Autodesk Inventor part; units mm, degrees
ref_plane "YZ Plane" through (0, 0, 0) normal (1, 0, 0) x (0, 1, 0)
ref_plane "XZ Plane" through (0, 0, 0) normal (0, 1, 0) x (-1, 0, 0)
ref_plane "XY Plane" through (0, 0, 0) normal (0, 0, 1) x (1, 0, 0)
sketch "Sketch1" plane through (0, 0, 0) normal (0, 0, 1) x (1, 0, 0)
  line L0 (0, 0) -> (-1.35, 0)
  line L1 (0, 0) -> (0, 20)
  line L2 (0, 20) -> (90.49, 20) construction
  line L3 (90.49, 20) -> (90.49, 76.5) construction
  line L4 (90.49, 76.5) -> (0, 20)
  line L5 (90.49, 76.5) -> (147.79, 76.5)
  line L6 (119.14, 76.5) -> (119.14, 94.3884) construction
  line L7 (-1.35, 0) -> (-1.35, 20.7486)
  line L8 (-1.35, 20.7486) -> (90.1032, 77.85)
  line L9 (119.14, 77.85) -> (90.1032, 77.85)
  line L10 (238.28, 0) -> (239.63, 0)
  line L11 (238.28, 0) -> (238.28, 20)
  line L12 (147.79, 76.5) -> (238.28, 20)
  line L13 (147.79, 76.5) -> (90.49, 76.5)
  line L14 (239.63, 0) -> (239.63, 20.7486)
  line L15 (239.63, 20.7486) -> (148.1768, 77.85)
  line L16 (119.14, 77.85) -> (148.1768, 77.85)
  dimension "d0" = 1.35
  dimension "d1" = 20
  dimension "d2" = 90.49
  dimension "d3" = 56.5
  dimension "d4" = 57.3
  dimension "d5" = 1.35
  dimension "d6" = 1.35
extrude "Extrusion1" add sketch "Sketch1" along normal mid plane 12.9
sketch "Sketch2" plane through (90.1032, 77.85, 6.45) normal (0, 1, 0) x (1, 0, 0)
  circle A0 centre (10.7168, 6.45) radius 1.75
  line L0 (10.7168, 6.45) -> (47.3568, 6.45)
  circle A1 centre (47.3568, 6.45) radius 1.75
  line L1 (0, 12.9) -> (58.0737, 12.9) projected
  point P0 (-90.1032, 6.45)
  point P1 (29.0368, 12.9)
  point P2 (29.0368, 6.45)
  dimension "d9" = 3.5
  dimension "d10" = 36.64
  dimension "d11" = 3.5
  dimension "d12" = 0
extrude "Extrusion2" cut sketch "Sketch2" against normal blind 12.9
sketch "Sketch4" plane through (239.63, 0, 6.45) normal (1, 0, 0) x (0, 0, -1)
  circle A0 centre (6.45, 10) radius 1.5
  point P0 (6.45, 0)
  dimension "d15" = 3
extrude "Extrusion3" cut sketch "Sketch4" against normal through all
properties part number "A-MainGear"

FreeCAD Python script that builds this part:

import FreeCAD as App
import Part
import Sketcher

V = App.Vector

doc = App.newDocument("Part")
body = doc.addObject("PartDesign::Body", "Body")

sketch1 = body.newObject("Sketcher::SketchObject", "Sketch")
sketch1.AttachmentSupport = (doc.getObject("XY_Plane"), [""])
sketch1.MapMode = "FlatFace"
sketch1.addGeometry([
    Part.LineSegment(V(-1.35, 0, 0), V(0, 0, 0)),
    Part.LineSegment(V(0, 0, 0), V(0, 20, 0)),
    Part.LineSegment(V(0, 20, 0), V(90.49, 76.5, 0)),
    Part.LineSegment(V(90.49, 76.5, 0), V(147.79, 76.5, 0)),
    Part.LineSegment(V(147.79, 76.5, 0), V(238.28, 20, 0)),
    Part.LineSegment(V(238.28, 20, 0), V(238.28, 0, 0)),
    Part.LineSegment(V(238.28, 0, 0), V(239.63, 0, 0)),
    Part.LineSegment(V(239.63, 0, 0), V(239.63, 20.7486, 0)),
    Part.LineSegment(V(239.63, 20.7486, 0), V(148.1768, 77.85, 0)),
    Part.LineSegment(V(148.1768, 77.85, 0), V(90.1032, 77.85, 0)),
    Part.LineSegment(V(90.1032, 77.85, 0), V(-1.35, 20.7486, 0)),
    Part.LineSegment(V(-1.35, 20.7486, 0), V(-1.35, 0, 0)),
], False)
sketch1.addConstraint([
    Sketcher.Constraint("Coincident", 0, 2, 1, 1),
    Sketcher.Constraint("Coincident", 1, 2, 2, 1),
    Sketcher.Constraint("Coincident", 2, 2, 3, 1),
    Sketcher.Constraint("Coincident", 3, 2, 4, 1),
    Sketcher.Constraint("Coincident", 4, 2, 5, 1),
    Sketcher.Constraint("Coincident", 5, 2, 6, 1),
    Sketcher.Constraint("Coincident", 6, 2, 7, 1),
    Sketcher.Constraint("Coincident", 7, 2, 8, 1),
    Sketcher.Constraint("Coincident", 8, 2, 9, 1),
    Sketcher.Constraint("Coincident", 9, 2, 10, 1),
    Sketcher.Constraint("Coincident", 10, 2, 11, 1),
    Sketcher.Constraint("Coincident", 11, 2, 0, 1),
    Sketcher.Constraint("Horizontal", 0),
    Sketcher.Constraint("Vertical", 1),
    Sketcher.Constraint("Horizontal", 3),
    Sketcher.Constraint("Vertical", 5),
    Sketcher.Constraint("Horizontal", 6),
    Sketcher.Constraint("Vertical", 7),
    Sketcher.Constraint("Horizontal", 9),
    Sketcher.Constraint("Vertical", 11),
    Sketcher.Constraint("Coincident", 0, 2, -1, 1),
    Sketcher.Constraint("PointOnObject", 5, 2, -1),
    Sketcher.Constraint("Parallel", 4, 8),
    Sketcher.Constraint("Parallel", 2, 10),
    Sketcher.Constraint("Horizontal", 1, 2, 4, 2),
    Sketcher.Constraint("Horizontal", 7, 2, 10, 2),
    Sketcher.Constraint("Equal", 0, 6),
    Sketcher.Constraint("Equal", 2, 4),
    Sketcher.Constraint("DistanceY", 1, 1, 1, 2, 20.0),
    Sketcher.Constraint("DistanceX", 3, 1, 3, 2, 57.3),
    Sketcher.Constraint("DistanceX", 0, 1, 0, 2, 1.35),
    Sketcher.Constraint("DistanceY", 1, 2, 2, 2, 56.5),
    Sketcher.Constraint("DistanceX", -1, 1, 2, 2, 90.49),
    Sketcher.Constraint("DistanceY", 3, 2, 8, 2, 1.35),
    Sketcher.Constraint("DistanceX", 9, 2, 9, 1, 58.0736),
])
pad1 = body.newObject("PartDesign::Pad", "Pad")
pad1.Profile = sketch1
pad1.Length = 12.9
pad1.Midplane = True

sketch2 = body.newObject("Sketcher::SketchObject", "Sketch001")
sketch2.AttachmentSupport = (doc.getObject("XZ_Plane"), [""])
sketch2.MapMode = "FlatFace"
sketch2.AttachmentOffset = App.Placement(V(0, 0, -77.85), App.Rotation())
sketch2.addGeometry([
    Part.Circle(V(100.82, 0, 0), V(0, 0, 1), 1.75),
    Part.Circle(V(137.46, 0, 0), V(0, 0, 1), 1.75),
], False)
sketch2.addConstraint([
    Sketcher.Constraint("Equal", 0, 1),
    Sketcher.Constraint("PointOnObject", 0, 3, -1),
    Sketcher.Constraint("PointOnObject", 1, 3, -1),
    Sketcher.Constraint("Diameter", 0, 3.5),
    Sketcher.Constraint("DistanceX", 0, 3, 1, 3, 36.64),
    Sketcher.Constraint("DistanceX", -1, 1, 0, 3, 100.82),
])
pocket1 = body.newObject("PartDesign::Pocket", "Pocket")
pocket1.Profile = sketch2
pocket1.Length = 12.9
pocket1.Reversed = True

sketch3 = body.newObject("Sketcher::SketchObject", "Sketch002")
sketch3.AttachmentSupport = (doc.getObject("YZ_Plane"), [""])
sketch3.MapMode = "FlatFace"
sketch3.AttachmentOffset = App.Placement(V(0, 0, 239.63), App.Rotation())
sketch3.addGeometry(Part.Circle(V(10, 0, 0), V(0, 0, 1), 1.5), False)
sketch3.addConstraint([
    Sketcher.Constraint("PointOnObject", 0, 3, -1),
    Sketcher.Constraint("Diameter", 0, 3.0),
    Sketcher.Constraint("DistanceX", -1, 1, 0, 3, 10.0),
])
pocket2 = body.newObject("PartDesign::Pocket", "Pocket001")
pocket2.Profile = sketch3
pocket2.Type = "ThroughAll"

doc.recompute()
